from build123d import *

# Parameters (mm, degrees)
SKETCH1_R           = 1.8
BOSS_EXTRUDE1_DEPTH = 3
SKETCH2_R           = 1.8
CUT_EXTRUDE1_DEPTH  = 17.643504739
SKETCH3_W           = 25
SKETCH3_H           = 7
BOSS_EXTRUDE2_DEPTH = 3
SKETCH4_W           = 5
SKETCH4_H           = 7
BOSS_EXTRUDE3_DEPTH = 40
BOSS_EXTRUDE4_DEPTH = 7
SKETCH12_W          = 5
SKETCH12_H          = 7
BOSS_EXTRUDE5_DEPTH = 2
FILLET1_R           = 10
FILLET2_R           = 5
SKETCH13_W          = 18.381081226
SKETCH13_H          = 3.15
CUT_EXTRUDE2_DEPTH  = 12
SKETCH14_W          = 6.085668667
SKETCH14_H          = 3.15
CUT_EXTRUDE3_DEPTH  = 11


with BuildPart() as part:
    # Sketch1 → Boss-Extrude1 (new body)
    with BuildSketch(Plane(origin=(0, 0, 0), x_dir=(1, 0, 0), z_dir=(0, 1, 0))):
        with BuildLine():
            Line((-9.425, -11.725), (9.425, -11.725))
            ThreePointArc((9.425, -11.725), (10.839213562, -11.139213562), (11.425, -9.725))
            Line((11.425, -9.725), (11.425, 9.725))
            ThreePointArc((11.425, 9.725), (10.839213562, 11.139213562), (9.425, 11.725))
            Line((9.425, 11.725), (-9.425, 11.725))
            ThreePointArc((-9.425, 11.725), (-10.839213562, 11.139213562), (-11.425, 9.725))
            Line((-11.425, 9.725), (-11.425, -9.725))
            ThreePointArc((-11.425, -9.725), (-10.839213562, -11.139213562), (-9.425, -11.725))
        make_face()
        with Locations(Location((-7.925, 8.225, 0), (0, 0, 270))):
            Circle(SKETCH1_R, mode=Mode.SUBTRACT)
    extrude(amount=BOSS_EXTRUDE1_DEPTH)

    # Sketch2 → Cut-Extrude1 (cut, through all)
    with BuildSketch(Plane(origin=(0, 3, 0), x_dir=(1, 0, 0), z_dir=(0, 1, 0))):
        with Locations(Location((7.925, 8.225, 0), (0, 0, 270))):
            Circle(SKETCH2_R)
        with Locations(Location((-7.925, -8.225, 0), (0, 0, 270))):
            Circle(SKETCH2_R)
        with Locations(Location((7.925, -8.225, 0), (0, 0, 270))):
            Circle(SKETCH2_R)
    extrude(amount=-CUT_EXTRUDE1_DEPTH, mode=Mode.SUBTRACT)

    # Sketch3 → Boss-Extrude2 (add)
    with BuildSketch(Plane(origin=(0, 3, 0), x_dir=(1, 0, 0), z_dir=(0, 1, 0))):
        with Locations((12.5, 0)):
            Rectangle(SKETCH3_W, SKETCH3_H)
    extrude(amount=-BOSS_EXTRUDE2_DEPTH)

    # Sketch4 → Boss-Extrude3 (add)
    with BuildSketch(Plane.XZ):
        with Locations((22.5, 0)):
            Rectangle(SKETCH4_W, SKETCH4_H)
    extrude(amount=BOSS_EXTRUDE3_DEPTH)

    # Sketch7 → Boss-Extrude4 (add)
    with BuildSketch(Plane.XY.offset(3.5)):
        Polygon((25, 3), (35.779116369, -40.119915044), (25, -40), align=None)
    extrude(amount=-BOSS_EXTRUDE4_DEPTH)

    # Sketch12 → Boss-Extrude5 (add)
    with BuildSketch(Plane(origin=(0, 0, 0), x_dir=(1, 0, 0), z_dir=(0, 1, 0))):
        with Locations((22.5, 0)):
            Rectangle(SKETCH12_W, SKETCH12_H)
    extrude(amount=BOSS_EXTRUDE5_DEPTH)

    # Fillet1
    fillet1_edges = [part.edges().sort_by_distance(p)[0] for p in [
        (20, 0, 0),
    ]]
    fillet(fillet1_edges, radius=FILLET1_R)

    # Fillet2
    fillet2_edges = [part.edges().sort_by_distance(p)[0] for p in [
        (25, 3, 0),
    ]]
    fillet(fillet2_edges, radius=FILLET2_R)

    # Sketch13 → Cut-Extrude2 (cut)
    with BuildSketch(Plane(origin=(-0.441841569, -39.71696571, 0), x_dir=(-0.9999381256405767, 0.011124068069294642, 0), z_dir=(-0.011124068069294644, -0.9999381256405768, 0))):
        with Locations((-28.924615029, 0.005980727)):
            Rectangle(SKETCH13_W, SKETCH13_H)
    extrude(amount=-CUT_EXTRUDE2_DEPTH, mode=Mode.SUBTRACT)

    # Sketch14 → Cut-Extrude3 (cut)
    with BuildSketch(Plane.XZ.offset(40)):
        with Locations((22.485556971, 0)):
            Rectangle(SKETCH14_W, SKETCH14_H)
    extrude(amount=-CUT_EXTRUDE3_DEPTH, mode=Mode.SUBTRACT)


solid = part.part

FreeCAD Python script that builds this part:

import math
import FreeCAD as App
import Part
import Sketcher


def edges_at(feature, points):
    """Names of the edges that pass closest to the given points."""
    edges = feature.Shape.Edges
    near = lambda p: min(range(len(edges)), key=lambda i: edges[i].distToShape(Part.Vertex(*p))[0])
    return sorted({f"Edge{near(p) + 1}" for p in points})

doc = App.newDocument("Part")
params = doc.addObject("Spreadsheet::Sheet", "Params")
for row, (alias, value) in enumerate([
    ("sketch1_radius", "2 mm"),
    ("sketch1_diameter", "3.6 mm"),
    ("sketch1_width", "18.85 mm"),
    ("sketch1_height", "19.45 mm"),
    ("pad1_length", "3 mm"),
    ("sketch2_diameter", "3.6 mm"),
    ("sketch3_width", "25 mm"),
    ("sketch3_height", "7 mm"),
    ("pad2_length", "3 mm"),
    ("sketch4_width", "5 mm"),
    ("sketch4_height", "7 mm"),
    ("pad3_length", "40 mm"),
    ("sketch5_height", "43 mm"),
    ("pad4_length", "7 mm"),
    ("sketch6_width", "5 mm"),
    ("sketch6_height", "7 mm"),
    ("pad5_length", "2 mm"),
    ("fillet_radius", "10 mm"),
    ("fillet2_radius", "5 mm"),
    ("sketch7_height", "3.15 mm"),
    ("pocket2_length", "12 mm"),
    ("sketch8_height", "3.15 mm"),
    ("pocket3_length", "11 mm"),
], start=1):
    params.set(f"A{row}", alias)
    params.set(f"B{row}", "=" + value)
    params.setAlias(f"B{row}", alias)

body = doc.addObject("PartDesign::Body", "Body")

# Sketch on XZ plane
sketch1 = doc.addObject("Sketcher::SketchObject", "Sketch")
body.addObject(sketch1)
sketch1.AttachmentSupport = (doc.XZ_Plane, [""])
sketch1.MapMode = "FlatFace"
sketch1.addGeometry([
    Part.LineSegment(App.Vector(-9.4, 11.7, 0), App.Vector(9.4, 11.7, 0)),  # 0
    Part.ArcOfCircle(Part.Circle(App.Vector(9.4, 9.7, 0), App.Vector(0, 0, 1), 2), math.radians(0), math.radians(90)),  # 1
    Part.LineSegment(App.Vector(11.4, 9.7, 0), App.Vector(11.4, -9.7, 0)),  # 2
    Part.ArcOfCircle(Part.Circle(App.Vector(9.4, -9.7, 0), App.Vector(0, 0, 1), 2), math.radians(-90), math.radians(0)),  # 3
    Part.LineSegment(App.Vector(9.4, -11.7, 0), App.Vector(-9.4, -11.7, 0)),  # 4
    Part.ArcOfCircle(Part.Circle(App.Vector(-9.4, -9.7, 0), App.Vector(0, 0, 1), 2), math.radians(-180), math.radians(-90)),  # 5
    Part.LineSegment(App.Vector(-11.4, -9.7, 0), App.Vector(-11.4, 9.7, 0)),  # 6
    Part.ArcOfCircle(Part.Circle(App.Vector(-9.4, 9.7, 0), App.Vector(0, 0, 1), 2), math.radians(90), math.radians(180)),  # 7
    Part.Circle(App.Vector(-7.9, -8.2, 0), App.Vector(0, 0, 1), 1.8),  # 8
], False)
sketch1.addConstraint([
    Sketcher.Constraint("Tangent", 0, 2, 1, 2),
    Sketcher.Constraint("Tangent", 1, 1, 2, 1),
    Sketcher.Constraint("Tangent", 2, 2, 3, 2),
    Sketcher.Constraint("Tangent", 3, 1, 4, 1),
    Sketcher.Constraint("Tangent", 4, 2, 5, 2),
    Sketcher.Constraint("Tangent", 5, 1, 6, 1),
    Sketcher.Constraint("Tangent", 6, 2, 7, 2),
    Sketcher.Constraint("Tangent", 7, 1, 0, 1),
    Sketcher.Constraint("Horizontal", 0),
    Sketcher.Constraint("Vertical", 2),
    Sketcher.Constraint("Horizontal", 4),
    Sketcher.Constraint("Vertical", 6),
    Sketcher.Constraint("Equal", 1, 3),
    Sketcher.Constraint("Equal", 3, 5),
    Sketcher.Constraint("Equal", 5, 7),
    Sketcher.Constraint("Symmetric", 1, 3, 5, 3, -1, 1),
    Sketcher.Constraint("Radius", 1, 2.0),
    Sketcher.Constraint("Diameter", 8, 3.6),
    Sketcher.Constraint("DistanceX", 0, 1, 0, 2, 18.85),
    Sketcher.Constraint("DistanceY", 2, 2, 2, 1, 19.45),
    Sketcher.Constraint("DistanceX", 5, 3, 8, 3, 1.5),
    Sketcher.Constraint("DistanceY", 5, 3, 8, 3, 1.5),
])
sketch1.setExpression("Constraints[16]", "Params.sketch1_radius")
sketch1.setExpression("Constraints[17]", "Params.sketch1_diameter")
sketch1.setExpression("Constraints[18]", "Params.sketch1_width")
sketch1.setExpression("Constraints[19]", "Params.sketch1_height")
pad1 = doc.addObject("PartDesign::Pad", "Pad")
body.addObject(pad1)
pad1.Profile = sketch1
pad1.setExpression("Length", "Params.pad1_length")
pad1.Reversed = True

# Sketch on XZ plane
sketch2 = doc.addObject("Sketcher::SketchObject", "Sketch001")
body.addObject(sketch2)
sketch2.AttachmentSupport = (doc.XZ_Plane, [""])
sketch2.MapMode = "FlatFace"
sketch2.AttachmentOffset = App.Placement(App.Vector(0, 0, -3), App.Rotation())
sketch2.addGeometry([
    Part.Circle(App.Vector(7.9, -8.2, 0), App.Vector(0, 0, 1), 1.8),
    Part.Circle(App.Vector(-7.9, 8.2, 0), App.Vector(0, 0, 1), 1.8),
    Part.Circle(App.Vector(7.9, 8.2, 0), App.Vector(0, 0, 1), 1.8),
], False)
sketch2.addConstraint([
    Sketcher.Constraint("Equal", 0, 1),
    Sketcher.Constraint("Equal", 1, 2),
    Sketcher.Constraint("Symmetric", 0, 3, 1, 3, -1, 1),
    Sketcher.Constraint("Symmetric", 1, 3, 2, 3, -2),
    Sketcher.Constraint("Diameter", 0, 3.6),
    Sketcher.Constraint("DistanceX", 1, 3, 0, 3, 15.85),
    Sketcher.Constraint("DistanceY", 0, 3, 1, 3, 16.45),
])
sketch2.setExpression("Constraints[4]", "Params.sketch2_diameter")
pocket1 = doc.addObject("PartDesign::Pocket", "Pocket")
body.addObject(pocket1)
pocket1.Profile = sketch2
pocket1.Type = "ThroughAll"
pocket1.Reversed = True

# Sketch on XZ plane
sketch3 = doc.addObject("Sketcher::SketchObject", "Sketch002")
body.addObject(sketch3)
sketch3.AttachmentSupport = (doc.XZ_Plane, [""])
sketch3.MapMode = "FlatFace"
sketch3.AttachmentOffset = App.Placement(App.Vector(0, 0, -3), App.Rotation())
sketch3.addGeometry([
    Part.LineSegment(App.Vector(0, -4, 0), App.Vector(0, 4, 0)),
    Part.LineSegment(App.Vector(0, 4, 0), App.Vector(25, 4, 0)),
    Part.LineSegment(App.Vector(25, 4, 0), App.Vector(25, -4, 0)),
    Part.LineSegment(App.Vector(25, -4, 0), App.Vector(0, -4, 0)),
], False)
sketch3.addConstraint([
    Sketcher.Constraint("Coincident", 0, 2, 1, 1),
    Sketcher.Constraint("Coincident", 1, 2, 2, 1),
    Sketcher.Constraint("Coincident", 2, 2, 3, 1),
    Sketcher.Constraint("Coincident", 3, 2, 0, 1),
    Sketcher.Constraint("Vertical", 0),
    Sketcher.Constraint("Horizontal", 1),
    Sketcher.Constraint("Vertical", 2),
    Sketcher.Constraint("Horizontal", 3),
    Sketcher.Constraint("Symmetric", 0, 2, 3, 2, -1, 1),
    Sketcher.Constraint("DistanceX", 1, 1, 1, 2, 25.0),
    Sketcher.Constraint("DistanceY", 0, 1, 0, 2, 7.0),
])
sketch3.setExpression("Constraints[9]", "Params.sketch3_width")
sketch3.setExpression("Constraints[10]", "Params.sketch3_height")
pad2 = doc.addObject("PartDesign::Pad", "Pad001")
body.addObject(pad2)
pad2.Profile = sketch3
pad2.setExpression("Length", "Params.pad2_length")

# Sketch on XZ plane
sketch4 = doc.addObject("Sketcher::SketchObject", "Sketch003")
body.addObject(sketch4)
sketch4.AttachmentSupport = (doc.XZ_Plane, [""])
sketch4.MapMode = "FlatFace"
sketch4.addGeometry([
    Part.LineSegment(App.Vector(20, 4, 0), App.Vector(20, -4, 0)),
    Part.LineSegment(App.Vector(20, -4, 0), App.Vector(25, -4, 0)),
    Part.LineSegment(App.Vector(25, -4, 0), App.Vector(25, 4, 0)),
    Part.LineSegment(App.Vector(25, 4, 0), App.Vector(20, 4, 0)),
], False)
sketch4.addConstraint([
    Sketcher.Constraint("Coincident", 0, 2, 1, 1),
    Sketcher.Constraint("Coincident", 1, 2, 2, 1),
    Sketcher.Constraint("Coincident", 2, 2, 3, 1),
    Sketcher.Constraint("Coincident", 3, 2, 0, 1),
    Sketcher.Constraint("Vertical", 0),
    Sketcher.Constraint("Horizontal", 1),
    Sketcher.Constraint("Vertical", 2),
    Sketcher.Constraint("Horizontal", 3),
    Sketcher.Constraint("DistanceX", 1, 1, 1, 2, 5.0),
    Sketcher.Constraint("DistanceY", 0, 2, 0, 1, 7.0),
    Sketcher.Constraint("DistanceX", -1, 1, 0, 2, 20.0),
    Sketcher.Constraint("DistanceY", 0, 2, -1, 1, 3.5),
])
sketch4.setExpression("Constraints[8]", "Params.sketch4_width")
sketch4.setExpression("Constraints[9]", "Params.sketch4_height")
pad3 = doc.addObject("PartDesign::Pad", "Pad002")
body.addObject(pad3)
pad3.Profile = sketch4
pad3.setExpression("Length", "Params.pad3_length")

# Sketch on XY plane
sketch5 = doc.addObject("Sketcher::SketchObject", "Sketch004")
body.addObject(sketch5)
sketch5.AttachmentSupport = (doc.XY_Plane, [""])
sketch5.MapMode = "FlatFace"
sketch5.AttachmentOffset = App.Placement(App.Vector(0, 0, 3.5), App.Rotation())
sketch5.addGeometry([
    Part.LineSegment(App.Vector(36, -40, 0), App.Vector(25, 3, 0)),
    Part.LineSegment(App.Vector(25, 3, 0), App.Vector(25, -40, 0)),
    Part.LineSegment(App.Vector(25, -40, 0), App.Vector(36, -40, 0)),
], False)
sketch5.addConstraint([
    Sketcher.Constraint("Coincident", 0, 2, 1, 1),
    Sketcher.Constraint("Coincident", 1, 2, 2, 1),
    Sketcher.Constraint("Coincident", 2, 2, 0, 1),
    Sketcher.Constraint("Vertical", 1),
    Sketcher.Constraint("DistanceY", 1, 2, 1, 1, 43.0),
    Sketcher.Constraint("DistanceX", -1, 1, 0, 2, 25.0),
    Sketcher.Constraint("DistanceY", -1, 1, 0, 2, 3.0),
    Sketcher.Constraint("Distance", 0, 44.446782),
    Sketcher.Constraint("Distance", 2, 10.779783),
])
sketch5.setExpression("Constraints[4]", "Params.sketch5_height")
pad4 = doc.addObject("PartDesign::Pad", "Pad003")
body.addObject(pad4)
pad4.Profile = sketch5
pad4.setExpression("Length", "Params.pad4_length")
pad4.Reversed = True

# Sketch on XZ plane
sketch6 = doc.addObject("Sketcher::SketchObject", "Sketch005")
body.addObject(sketch6)
sketch6.AttachmentSupport = (doc.XZ_Plane, [""])
sketch6.MapMode = "FlatFace"
sketch6.addGeometry([
    Part.LineSegment(App.Vector(20, -4, 0), App.Vector(20, 4, 0)),
    Part.LineSegment(App.Vector(20, 4, 0), App.Vector(25, 4, 0)),
    Part.LineSegment(App.Vector(25, 4, 0), App.Vector(25, -4, 0)),
    Part.LineSegment(App.Vector(25, -4, 0), App.Vector(20, -4, 0)),
], False)
sketch6.addConstraint([
    Sketcher.Constraint("Coincident", 0, 2, 1, 1),
    Sketcher.Constraint("Coincident", 1, 2, 2, 1),
    Sketcher.Constraint("Coincident", 2, 2, 3, 1),
    Sketcher.Constraint("Coincident", 3, 2, 0, 1),
    Sketcher.Constraint("Vertical", 0),
    Sketcher.Constraint("Horizontal", 1),
    Sketcher.Constraint("Vertical", 2),
    Sketcher.Constraint("Horizontal", 3),
    Sketcher.Constraint("DistanceX", 1, 1, 1, 2, 5.0),
    Sketcher.Constraint("DistanceY", 0, 1, 0, 2, 7.0),
    Sketcher.Constraint("DistanceX", -1, 1, 0, 2, 20.0),
    Sketcher.Constraint("DistanceY", -1, 1, 0, 2, 3.5),
])
sketch6.setExpression("Constraints[8]", "Params.sketch6_width")
sketch6.setExpression("Constraints[9]", "Params.sketch6_height")
pad5 = doc.addObject("PartDesign::Pad", "Pad004")
body.addObject(pad5)
pad5.Profile = sketch6
pad5.setExpression("Length", "Params.pad5_length")
pad5.Reversed = True
doc.recompute()

fillet = doc.addObject("PartDesign::Fillet", "Fillet")
body.addObject(fillet)
fillet.Base = (pad5, edges_at(pad5, [(20, 0, 0)]))
fillet.setExpression("Radius", "Params.fillet_radius")
doc.recompute()

fillet2 = doc.addObject("PartDesign::Fillet", "Fillet001")
body.addObject(fillet2)
fillet2.Base = (fillet, edges_at(fillet, [(25, 3, 0)]))
fillet2.setExpression("Radius", "Params.fillet2_radius")

# Sketch on an angled plane
sketch7 = doc.addObject("Sketcher::SketchObject", "Sketch006")
body.addObject(sketch7)
sketch7.Placement = App.Placement(App.Vector(-0.441842, -39.716966, 0), App.Rotation(App.Vector(-0.999938126, 0.011124068, 0), App.Vector(0, 0, -1.000000001), App.Vector(-0.011124068, -0.999938126, 0), "ZXY"))
sketch7.addGeometry([
    Part.LineSegment(App.Vector(-38.1, 1.6, 0), App.Vector(-38.1, -1.6, 0)),
    Part.LineSegment(App.Vector(-38.1, -1.6, 0), App.Vector(-19.7, -1.6, 0)),
    Part.LineSegment(App.Vector(-19.7, -1.6, 0), App.Vector(-19.7, 1.6, 0)),
    Part.LineSegment(App.Vector(-19.7, 1.6, 0), App.Vector(-38.1, 1.6, 0)),
], False)
sketch7.addConstraint([
    Sketcher.Constraint("Coincident", 0, 2, 1, 1),
    Sketcher.Constraint("Coincident", 1, 2, 2, 1),
    Sketcher.Constraint("Coincident", 2, 2, 3, 1),
    Sketcher.Constraint("Coincident", 3, 2, 0, 1),
    Sketcher.Constraint("Vertical", 0),
    Sketcher.Constraint("Horizontal", 1),
    Sketcher.Constraint("Vertical", 2),
    Sketcher.Constraint("Horizontal", 3),
    Sketcher.Constraint("DistanceY", 0, 2, 0, 1, 3.15),
    Sketcher.Constraint("DistanceX", 1, 1, 1, 2, 18.381081),
    Sketcher.Constraint("DistanceY", 0, 2, -1, 1, 1.569019),
    Sketcher.Constraint("DistanceX", 0, 2, -1, 1, 38.115156),
])
sketch7.setExpression("Constraints[8]", "Params.sketch7_height")
pocket2 = doc.addObject("PartDesign::Pocket", "Pocket001")
body.addObject(pocket2)
pocket2.Profile = sketch7
pocket2.setExpression("Length", "Params.pocket2_length")

# Sketch on XZ plane
sketch8 = doc.addObject("Sketcher::SketchObject", "Sketch007")
body.addObject(sketch8)
sketch8.AttachmentSupport = (doc.XZ_Plane, [""])
sketch8.MapMode = "FlatFace"
sketch8.AttachmentOffset = App.Placement(App.Vector(0, 0, 40), App.Rotation())
sketch8.addGeometry([
    Part.LineSegment(App.Vector(19.4, 1.6, 0), App.Vector(19.4, -1.6, 0)),
    Part.LineSegment(App.Vector(19.4, -1.6, 0), App.Vector(25.5, -1.6, 0)),
    Part.LineSegment(App.Vector(25.5, -1.6, 0), App.Vector(25.5, 1.6, 0)),
    Part.LineSegment(App.Vector(25.5, 1.6, 0), App.Vector(19.4, 1.6, 0)),
], False)
sketch8.addConstraint([
    Sketcher.Constraint("Coincident", 0, 2, 1, 1),
    Sketcher.Constraint("Coincident", 1, 2, 2, 1),
    Sketcher.Constraint("Coincident", 2, 2, 3, 1),
    Sketcher.Constraint("Coincident", 3, 2, 0, 1),
    Sketcher.Constraint("Vertical", 0),
    Sketcher.Constraint("Horizontal", 1),
    Sketcher.Constraint("Vertical", 2),
    Sketcher.Constraint("Horizontal", 3),
    Sketcher.Constraint("DistanceY", 0, 2, 0, 1, 3.15),
    Sketcher.Constraint("DistanceY", 0, 2, -1, 1, 1.575),
    Sketcher.Constraint("DistanceX", 1, 1, 1, 2, 6.085669),
    Sketcher.Constraint("DistanceX", -1, 1, 1, 2, 25.528391),
])
sketch8.setExpression("Constraints[8]", "Params.sketch8_height")
pocket3 = doc.addObject("PartDesign::Pocket", "Pocket002")
body.addObject(pocket3)
pocket3.Profile = sketch8
pocket3.setExpression("Length", "Params.pocket3_length")

doc.recompute()
